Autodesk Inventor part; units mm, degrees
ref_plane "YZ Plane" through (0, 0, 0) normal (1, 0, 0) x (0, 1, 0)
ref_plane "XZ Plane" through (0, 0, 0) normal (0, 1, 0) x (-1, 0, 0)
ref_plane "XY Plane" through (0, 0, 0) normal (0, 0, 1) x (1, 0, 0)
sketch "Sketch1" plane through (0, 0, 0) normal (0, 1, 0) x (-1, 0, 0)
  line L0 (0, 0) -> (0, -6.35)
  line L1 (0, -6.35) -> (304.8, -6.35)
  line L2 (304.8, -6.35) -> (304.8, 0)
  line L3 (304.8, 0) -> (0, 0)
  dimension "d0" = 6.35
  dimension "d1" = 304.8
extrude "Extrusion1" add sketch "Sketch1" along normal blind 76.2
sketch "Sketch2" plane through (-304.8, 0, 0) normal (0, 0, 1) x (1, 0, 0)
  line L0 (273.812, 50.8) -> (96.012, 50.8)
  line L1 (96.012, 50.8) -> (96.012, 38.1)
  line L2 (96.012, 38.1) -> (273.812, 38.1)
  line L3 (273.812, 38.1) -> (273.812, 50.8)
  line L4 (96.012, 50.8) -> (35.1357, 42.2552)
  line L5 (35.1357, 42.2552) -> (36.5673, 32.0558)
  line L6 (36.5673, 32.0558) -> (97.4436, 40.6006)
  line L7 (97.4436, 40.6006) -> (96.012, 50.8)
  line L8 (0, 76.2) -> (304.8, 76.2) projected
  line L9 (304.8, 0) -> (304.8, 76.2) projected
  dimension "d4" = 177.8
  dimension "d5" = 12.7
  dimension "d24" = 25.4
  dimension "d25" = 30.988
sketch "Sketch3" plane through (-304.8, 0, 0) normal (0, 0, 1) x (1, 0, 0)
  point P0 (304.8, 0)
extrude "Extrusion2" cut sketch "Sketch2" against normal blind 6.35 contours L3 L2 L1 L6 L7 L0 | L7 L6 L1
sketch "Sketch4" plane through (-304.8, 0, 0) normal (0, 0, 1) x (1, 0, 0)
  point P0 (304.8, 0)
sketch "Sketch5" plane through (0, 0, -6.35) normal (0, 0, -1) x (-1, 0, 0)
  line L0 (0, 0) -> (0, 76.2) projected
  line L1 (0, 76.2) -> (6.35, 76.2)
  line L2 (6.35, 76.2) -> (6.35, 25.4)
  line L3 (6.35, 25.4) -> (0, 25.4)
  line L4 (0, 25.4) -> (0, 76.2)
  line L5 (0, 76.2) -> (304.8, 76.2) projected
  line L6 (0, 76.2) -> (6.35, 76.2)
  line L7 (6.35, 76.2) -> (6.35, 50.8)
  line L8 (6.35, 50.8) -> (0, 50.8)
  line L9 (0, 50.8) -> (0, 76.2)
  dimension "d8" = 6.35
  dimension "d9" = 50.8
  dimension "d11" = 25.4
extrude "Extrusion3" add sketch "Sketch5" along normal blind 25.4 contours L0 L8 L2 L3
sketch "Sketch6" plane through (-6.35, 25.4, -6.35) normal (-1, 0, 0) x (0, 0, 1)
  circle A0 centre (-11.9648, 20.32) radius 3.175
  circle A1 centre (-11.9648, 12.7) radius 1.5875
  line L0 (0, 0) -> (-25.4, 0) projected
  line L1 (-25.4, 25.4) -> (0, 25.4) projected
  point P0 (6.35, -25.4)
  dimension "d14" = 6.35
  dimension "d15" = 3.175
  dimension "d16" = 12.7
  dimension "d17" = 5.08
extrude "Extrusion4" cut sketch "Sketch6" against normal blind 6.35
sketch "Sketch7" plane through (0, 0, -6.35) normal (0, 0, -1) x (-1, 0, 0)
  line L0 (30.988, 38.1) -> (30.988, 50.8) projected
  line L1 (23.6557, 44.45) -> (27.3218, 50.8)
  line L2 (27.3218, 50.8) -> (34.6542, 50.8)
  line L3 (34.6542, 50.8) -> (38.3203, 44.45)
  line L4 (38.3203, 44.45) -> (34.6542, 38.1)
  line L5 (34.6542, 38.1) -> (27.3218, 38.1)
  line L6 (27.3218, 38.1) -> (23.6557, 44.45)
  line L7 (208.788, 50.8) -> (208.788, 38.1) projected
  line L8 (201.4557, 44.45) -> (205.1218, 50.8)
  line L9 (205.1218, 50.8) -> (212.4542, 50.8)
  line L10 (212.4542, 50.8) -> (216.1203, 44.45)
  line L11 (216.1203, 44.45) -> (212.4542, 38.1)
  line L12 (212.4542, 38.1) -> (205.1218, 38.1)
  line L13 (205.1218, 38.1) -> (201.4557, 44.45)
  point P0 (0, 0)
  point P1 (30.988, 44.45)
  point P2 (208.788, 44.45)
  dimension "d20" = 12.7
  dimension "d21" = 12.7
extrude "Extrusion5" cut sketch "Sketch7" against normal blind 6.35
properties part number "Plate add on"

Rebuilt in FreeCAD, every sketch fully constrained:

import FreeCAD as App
import Part
import Sketcher
from FreeCAD import Vector
Q = App.Units.Quantity

doc = App.newDocument("Part")
params = doc.addObject("Spreadsheet::Sheet", "Params")
for row, (alias, value) in enumerate([
    ("sketch1_width", "12 in"),
    ("sketch1_height", "0.25 in"),
    ("pad1_length", "3 in"),
    ("sketch2_width", "7 in"),
    ("sketch2_height", "0.5 in"),
    ("pocket1_length", "0.25 in"),
    ("sketch3_height", "1 in"),
    ("sketch3_width", "0.25 in"),
    ("pad2_length", "1 in"),
    ("sketch4_diameter", "0.25 in"),
    ("sketch4_diameter2", "0.125 in"),
    ("pocket2_length", "0.25 in"),
    ("pocket3_length", "0.25 in"),
], start=1):
    params.set(f"A{row}", alias)
    params.set(f"B{row}", "=" + value)
    params.setAlias(f"B{row}", alias)

body = doc.addObject("PartDesign::Body", "Body")

# Sketch on XZ plane
sketch1 = body.newObject("Sketcher::SketchObject", "Sketch")
sketch1.AttachmentSupport = (doc.getObject("XZ_Plane"), [""])
sketch1.MapMode = "FlatFace"
sketch1.addGeometry([
    Part.LineSegment(Vector(-305, 0, 0), Vector(0, 0, 0)),
    Part.LineSegment(Vector(0, 0, 0), Vector(0, -6, 0)),
    Part.LineSegment(Vector(0, -6, 0), Vector(-305, -6, 0)),
    Part.LineSegment(Vector(-305, -6, 0), Vector(-305, 0, 0)),
], False)
sketch1.addConstraint([
    Sketcher.Constraint("Coincident", 0, 2, 1, 1),
    Sketcher.Constraint("Coincident", 1, 2, 2, 1),
    Sketcher.Constraint("Coincident", 2, 2, 3, 1),
    Sketcher.Constraint("Coincident", 3, 2, 0, 1),
    Sketcher.Constraint("Horizontal", 0),
    Sketcher.Constraint("Vertical", 1),
    Sketcher.Constraint("Horizontal", 2),
    Sketcher.Constraint("Vertical", 3),
    Sketcher.Constraint("Coincident", 0, 2, -1, 1),
    Sketcher.Constraint("DistanceX", 0, 1, 0, 2, Q("12 in")),
    Sketcher.Constraint("DistanceY", 1, 2, 1, 1, Q("0.25 in")),
])
sketch1.setExpression("Constraints[9]", "Params.sketch1_width")
sketch1.setExpression("Constraints[10]", "Params.sketch1_height")
pad1 = body.newObject("PartDesign::Pad", "Pad")
pad1.Profile = sketch1
pad1.setExpression("Length", "Params.pad1_length")
pad1.Reversed = True

# Sketch on XY plane
sketch2 = body.newObject("Sketcher::SketchObject", "Sketch001")
sketch2.AttachmentSupport = (doc.getObject("XY_Plane"), [""])
sketch2.MapMode = "FlatFace"
sketch2.addGeometry([
    Part.LineSegment(Vector(-31, 38, 0), Vector(-31, 51, 0)),
    Part.LineSegment(Vector(-31, 51, 0), Vector(-209, 51, 0)),
    Part.LineSegment(Vector(-209, 51, 0), Vector(-209, 38, 0)),
    Part.LineSegment(Vector(-209, 38, 0), Vector(-31, 38, 0)),
], False)
sketch2.addConstraint([
    Sketcher.Constraint("Coincident", 0, 2, 1, 1),
    Sketcher.Constraint("Coincident", 1, 2, 2, 1),
    Sketcher.Constraint("Coincident", 2, 2, 3, 1),
    Sketcher.Constraint("Coincident", 3, 2, 0, 1),
    Sketcher.Constraint("Vertical", 0),
    Sketcher.Constraint("Horizontal", 1),
    Sketcher.Constraint("Vertical", 2),
    Sketcher.Constraint("Horizontal", 3),
    Sketcher.Constraint("DistanceX", 1, 2, 1, 1, Q("7 in")),
    Sketcher.Constraint("DistanceY", 0, 1, 0, 2, Q("0.5 in")),
    Sketcher.Constraint("DistanceX", 0, 2, -1, 1, Q("1.22 in")),
    Sketcher.Constraint("DistanceY", -1, 1, 0, 2, Q("2 in")),
])
sketch2.setExpression("Constraints[8]", "Params.sketch2_width")
sketch2.setExpression("Constraints[9]", "Params.sketch2_height")
pocket1 = body.newObject("PartDesign::Pocket", "Pocket")
pocket1.Profile = sketch2
pocket1.setExpression("Length", "Params.pocket1_length")

# Sketch on XY plane
sketch3 = body.newObject("Sketcher::SketchObject", "Sketch002")
sketch3.AttachmentSupport = (doc.getObject("XY_Plane"), [""])
sketch3.MapMode = "FlatFace"
sketch3.AttachmentOffset = App.Placement(Vector(0, 0, -0.25 * 25.4), App.Rotation())
sketch3.addGeometry([
    Part.LineSegment(Vector(0, 51, 0), Vector(0, 25, 0)),
    Part.LineSegment(Vector(0, 25, 0), Vector(-6, 25, 0)),
    Part.LineSegment(Vector(-6, 25, 0), Vector(-6, 51, 0)),
    Part.LineSegment(Vector(-6, 51, 0), Vector(0, 51, 0)),
], False)
sketch3.addConstraint([
    Sketcher.Constraint("Coincident", 0, 2, 1, 1),
    Sketcher.Constraint("Coincident", 1, 2, 2, 1),
    Sketcher.Constraint("Coincident", 2, 2, 3, 1),
    Sketcher.Constraint("Coincident", 3, 2, 0, 1),
    Sketcher.Constraint("Vertical", 0),
    Sketcher.Constraint("Horizontal", 1),
    Sketcher.Constraint("Vertical", 2),
    Sketcher.Constraint("Horizontal", 3),
    Sketcher.Constraint("PointOnObject", 0, 2, -2),
    Sketcher.Constraint("DistanceY", 0, 2, 0, 1, Q("1 in")),
    Sketcher.Constraint("DistanceY", -1, 1, 0, 2, Q("1 in")),
    Sketcher.Constraint("DistanceX", 1, 2, 1, 1, Q("0.25 in")),
])
sketch3.setExpression("Constraints[9]", "Params.sketch3_height")
sketch3.setExpression("Constraints[11]", "Params.sketch3_width")
pad2 = body.newObject("PartDesign::Pad", "Pad001")
pad2.Profile = sketch3
pad2.setExpression("Length", "Params.pad2_length")
pad2.Reversed = True

# Sketch on YZ plane
sketch4 = body.newObject("Sketcher::SketchObject", "Sketch003")
sketch4.AttachmentSupport = (doc.getObject("YZ_Plane"), [""])
sketch4.MapMode = "FlatFace"
sketch4.AttachmentOffset = App.Placement(Vector(0, 0, -0.25 * 25.4), App.Rotation())
sketch4.addGeometry([
    Part.Circle(Vector(45.7, -18.3, 0), Vector(0, 0, 1), 3.2),
    Part.Circle(Vector(38.1, -18.3, 0), Vector(0, 0, 1), 1.6),
], False)
sketch4.addConstraint([
    Sketcher.Constraint("Horizontal", 0, 3, 1, 3),
    Sketcher.Constraint("Diameter", 0, Q("0.25 in")),
    Sketcher.Constraint("Diameter", 1, Q("0.125 in")),
    Sketcher.Constraint("DistanceX", -1, 1, 0, 3, Q("1.8 in")),
    Sketcher.Constraint("DistanceX", -1, 1, 1, 3, Q("1.5 in")),
    Sketcher.Constraint("DistanceY", 0, 3, -1, 1, Q("18.3148 mm")),
])
sketch4.setExpression("Constraints[1]", "Params.sketch4_diameter")
sketch4.setExpression("Constraints[2]", "Params.sketch4_diameter2")
pocket2 = body.newObject("PartDesign::Pocket", "Pocket001")
pocket2.Profile = sketch4
pocket2.setExpression("Length", "Params.pocket2_length")
pocket2.Reversed = True

# Sketch on XY plane
sketch5 = body.newObject("Sketcher::SketchObject", "Sketch004")
sketch5.AttachmentSupport = (doc.getObject("XY_Plane"), [""])
sketch5.MapMode = "FlatFace"
sketch5.AttachmentOffset = App.Placement(Vector(0, 0, -0.25 * 25.4), App.Rotation())
sketch5.addGeometry([
    Part.LineSegment(Vector(-27, 38, 0), Vector(-35, 38, 0)),  # 0
    Part.LineSegment(Vector(-35, 38, 0), Vector(-38, 44, 0)),  # 1
    Part.LineSegment(Vector(-38, 44, 0), Vector(-35, 51, 0)),  # 2
    Part.LineSegment(Vector(-35, 51, 0), Vector(-27, 51, 0)),  # 3
    Part.LineSegment(Vector(-27, 51, 0), Vector(-24, 44, 0)),  # 4
    Part.LineSegment(Vector(-24, 44, 0), Vector(-27, 38, 0)),  # 5
    Part.LineSegment(Vector(-212, 51, 0), Vector(-205, 51, 0)),  # 6
    Part.LineSegment(Vector(-205, 51, 0), Vector(-201, 44, 0)),  # 7
    Part.LineSegment(Vector(-201, 44, 0), Vector(-205, 38, 0)),  # 8
    Part.LineSegment(Vector(-205, 38, 0), Vector(-212, 38, 0)),  # 9
    Part.LineSegment(Vector(-212, 38, 0), Vector(-216, 44, 0)),  # 10
    Part.LineSegment(Vector(-216, 44, 0), Vector(-212, 51, 0)),  # 11
], False)
sketch5.addConstraint([
    Sketcher.Constraint("Coincident", 0, 2, 1, 1),
    Sketcher.Constraint("Coincident", 1, 2, 2, 1),
    Sketcher.Constraint("Coincident", 2, 2, 3, 1),
    Sketcher.Constraint("Coincident", 3, 2, 4, 1),
    Sketcher.Constraint("Coincident", 4, 2, 5, 1),
    Sketcher.Constraint("Coincident", 5, 2, 0, 1),
    Sketcher.Constraint("Coincident", 6, 2, 7, 1),
    Sketcher.Constraint("Coincident", 7, 2, 8, 1),
    Sketcher.Constraint("Coincident", 8, 2, 9, 1),
    Sketcher.Constraint("Coincident", 9, 2, 10, 1),
    Sketcher.Constraint("Coincident", 10, 2, 11, 1),
    Sketcher.Constraint("Coincident", 11, 2, 6, 1),
    Sketcher.Constraint("Horizontal", 0),
    Sketcher.Constraint("Horizontal", 3),
    Sketcher.Constraint("Horizontal", 6),
    Sketcher.Constraint("Horizontal", 9),
    Sketcher.Constraint("Parallel", 1, 4),
    Sketcher.Constraint("Parallel", 2, 5),
    Sketcher.Constraint("Parallel", 4, 7),
    Sketcher.Constraint("Parallel", 5, 8),
    Sketcher.Constraint("Parallel", 7, 10),
    Sketcher.Constraint("Parallel", 8, 11),
    Sketcher.Constraint("Horizontal", 1, 2, 4, 2),
    Sketcher.Constraint("Horizontal", 3, 2, 6, 2),
    Sketcher.Constraint("Horizontal", 4, 2, 7, 2),
    Sketcher.Constraint("Horizontal", 5, 2, 8, 2),
    Sketcher.Constraint("Horizontal", 7, 2, 10, 2),
    Sketcher.Constraint("Vertical", 0, 2, 2, 2),
    Sketcher.Constraint("Vertical", 3, 2, 5, 2),
    Sketcher.Constraint("Equal", 3, 6),
    Sketcher.Constraint("DistanceY", 0, 2, 2, 2, Q("0.5 in")),
    Sketcher.Constraint("DistanceY", -1, 1, 2, 2, Q("2 in")),
    Sketcher.Constraint("Angle", 1, Q("119.9995 deg")),
    Sketcher.Constraint("DistanceX", 6, 2, 3, 2, Q("7 in")),
    Sketcher.Constraint("DistanceX", 1, 2, 3, 2, Q("0.433 in")),
    Sketcher.Constraint("DistanceX", 0, 2, -1, 1, Q("34.6542 mm")),
])
pocket3 = body.newObject("PartDesign::Pocket", "Pocket002")
pocket3.Profile = sketch5
pocket3.setExpression("Length", "Params.pocket3_length")
pocket3.Reversed = True

doc.recompute()
